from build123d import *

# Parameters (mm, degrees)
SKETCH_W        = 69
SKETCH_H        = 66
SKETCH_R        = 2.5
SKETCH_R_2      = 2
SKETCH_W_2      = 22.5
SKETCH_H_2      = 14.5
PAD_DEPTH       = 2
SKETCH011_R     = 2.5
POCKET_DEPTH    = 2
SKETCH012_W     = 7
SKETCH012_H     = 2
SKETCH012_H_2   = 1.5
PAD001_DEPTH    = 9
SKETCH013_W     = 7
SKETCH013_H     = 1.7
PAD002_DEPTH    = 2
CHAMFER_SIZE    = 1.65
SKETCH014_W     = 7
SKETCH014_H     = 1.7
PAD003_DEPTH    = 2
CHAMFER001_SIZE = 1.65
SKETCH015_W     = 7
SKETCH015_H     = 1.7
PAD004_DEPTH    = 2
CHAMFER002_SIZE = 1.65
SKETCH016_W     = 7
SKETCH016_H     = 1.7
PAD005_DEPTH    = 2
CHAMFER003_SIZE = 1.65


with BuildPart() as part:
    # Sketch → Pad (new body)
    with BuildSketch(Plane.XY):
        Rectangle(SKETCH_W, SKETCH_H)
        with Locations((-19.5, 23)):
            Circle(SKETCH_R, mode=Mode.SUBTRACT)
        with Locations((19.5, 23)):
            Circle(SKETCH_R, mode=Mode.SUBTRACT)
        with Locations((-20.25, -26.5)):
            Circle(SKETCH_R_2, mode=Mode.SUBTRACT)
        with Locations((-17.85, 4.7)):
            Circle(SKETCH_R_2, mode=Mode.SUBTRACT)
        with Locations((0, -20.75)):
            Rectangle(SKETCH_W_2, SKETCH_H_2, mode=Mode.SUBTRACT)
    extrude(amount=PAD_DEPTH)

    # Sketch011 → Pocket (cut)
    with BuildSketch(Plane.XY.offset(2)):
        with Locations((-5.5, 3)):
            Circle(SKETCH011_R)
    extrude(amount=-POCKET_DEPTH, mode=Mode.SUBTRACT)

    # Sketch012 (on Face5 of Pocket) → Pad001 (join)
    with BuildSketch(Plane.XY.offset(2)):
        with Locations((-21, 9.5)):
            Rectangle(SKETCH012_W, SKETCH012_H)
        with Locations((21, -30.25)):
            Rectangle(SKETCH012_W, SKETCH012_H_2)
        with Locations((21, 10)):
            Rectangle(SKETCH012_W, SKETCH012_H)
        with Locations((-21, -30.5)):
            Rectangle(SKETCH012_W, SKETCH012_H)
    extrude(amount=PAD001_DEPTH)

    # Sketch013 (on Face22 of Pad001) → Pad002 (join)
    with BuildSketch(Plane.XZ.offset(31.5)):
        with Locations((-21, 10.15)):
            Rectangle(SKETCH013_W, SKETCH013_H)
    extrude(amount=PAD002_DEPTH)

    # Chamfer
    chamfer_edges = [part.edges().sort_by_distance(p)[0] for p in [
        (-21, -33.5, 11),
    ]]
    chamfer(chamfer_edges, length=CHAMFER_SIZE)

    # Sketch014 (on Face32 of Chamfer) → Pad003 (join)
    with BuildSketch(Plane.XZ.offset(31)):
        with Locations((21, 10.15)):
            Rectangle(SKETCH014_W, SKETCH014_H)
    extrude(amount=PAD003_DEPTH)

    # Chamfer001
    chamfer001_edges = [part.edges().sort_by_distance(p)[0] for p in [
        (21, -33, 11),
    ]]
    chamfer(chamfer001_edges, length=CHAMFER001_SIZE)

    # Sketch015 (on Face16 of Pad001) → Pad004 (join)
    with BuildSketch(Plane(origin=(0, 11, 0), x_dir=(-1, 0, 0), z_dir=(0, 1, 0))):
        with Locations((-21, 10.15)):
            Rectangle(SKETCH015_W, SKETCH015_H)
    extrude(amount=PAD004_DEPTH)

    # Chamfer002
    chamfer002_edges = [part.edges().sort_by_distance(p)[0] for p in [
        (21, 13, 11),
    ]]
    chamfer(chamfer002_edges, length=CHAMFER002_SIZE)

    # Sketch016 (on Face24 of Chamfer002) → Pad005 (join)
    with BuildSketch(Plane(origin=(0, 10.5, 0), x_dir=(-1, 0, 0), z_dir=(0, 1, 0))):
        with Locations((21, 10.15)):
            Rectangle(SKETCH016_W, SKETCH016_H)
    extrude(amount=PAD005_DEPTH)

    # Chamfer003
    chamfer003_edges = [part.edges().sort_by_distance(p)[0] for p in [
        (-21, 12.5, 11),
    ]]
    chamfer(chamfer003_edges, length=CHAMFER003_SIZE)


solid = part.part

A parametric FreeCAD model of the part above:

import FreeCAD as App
import Part
import Sketcher

V = App.Vector
Q = App.Units.Quantity


def edges_at(feature, points):
    """Names of the edges that pass closest to the given points."""
    edges = feature.Shape.Edges
    near = lambda p: min(range(len(edges)), key=lambda i: edges[i].distToShape(Part.Vertex(*p))[0])
    return sorted({f"Edge{near(p) + 1}" for p in points})


def add_polygon(sketch, points):
    """Adds a closed chain of lines whose ends are joined by coincident constraints."""
    first, n = sketch.GeometryCount, len(points)
    for a, b in zip(points, points[1:] + points[:1]):
        sketch.addGeometry(Part.LineSegment(App.Vector(*a, 0), App.Vector(*b, 0)), False)
    for i in range(n):
        sketch.addConstraint(Sketcher.Constraint("Coincident", first + i, 2, first + (i + 1) % n, 1))

doc = App.newDocument("Part")
body = doc.addObject("PartDesign::Body", "Body")

# Sketch on XY plane
sketch1 = body.newObject("Sketcher::SketchObject", "Sketch")
sketch1.AttachmentSupport = (doc.getObject("XY_Plane"), [""])
sketch1.MapMode = "FlatFace"
add_polygon(sketch1, [(-34.5, 33), (-34.5, -33), (34.5, -33), (34.5, 33)])  # lines 0-3
sketch1.addGeometry(Part.Circle(V(-20.2, -26.5, 0), V(0, 0, 1), 2), False)  # 4
add_polygon(sketch1, [(11.2, -28), (-11.2, -28), (-11.2, -13.5), (11.2, -13.5)])  # lines 5-8
sketch1.addGeometry(Part.Circle(V(-17.9, 4.7, 0), V(0, 0, 1), 2), False)  # 9
sketch1.addGeometry(Part.Circle(V(-19.5, 23, 0), V(0, 0, 1), 2.5), False)  # 10
sketch1.addGeometry(Part.Circle(V(19.5, 23, 0), V(0, 0, 1), 2.5), False)  # 11
sketch1.addConstraint(Sketcher.Constraint("Vertical", 0))
sketch1.addConstraint(Sketcher.Constraint("Horizontal", 1))
sketch1.addConstraint(Sketcher.Constraint("Vertical", 2))
sketch1.addConstraint(Sketcher.Constraint("Horizontal", 3))
sketch1.addConstraint(Sketcher.Constraint("Horizontal", 5))
sketch1.addConstraint(Sketcher.Constraint("Vertical", 6))
sketch1.addConstraint(Sketcher.Constraint("Horizontal", 7))
sketch1.addConstraint(Sketcher.Constraint("Vertical", 8))
sketch1.addConstraint(Sketcher.Constraint("Equal", 4, 9))
sketch1.addConstraint(Sketcher.Constraint("Equal", 10, 11))
sketch1.addConstraint(Sketcher.Constraint("Symmetric", 0, 2, 2, 2, -1, 1))
sketch1.addConstraint(Sketcher.Constraint("Symmetric", 10, 3, 11, 3, -2))
sketch1.addConstraint(Sketcher.Constraint("Diameter", 4, Q("4 mm")))
sketch1.addConstraint(Sketcher.Constraint("Diameter", 10, Q("5 mm")))
sketch1.addConstraint(Sketcher.Constraint("DistanceX", 1, 1, 1, 2, Q("69 mm")))
sketch1.addConstraint(Sketcher.Constraint("DistanceY", 0, 2, 0, 1, Q("66 mm")))
sketch1.addConstraint(Sketcher.Constraint("DistanceX", 5, 2, 5, 1, Q("22.5 mm")))
sketch1.addConstraint(Sketcher.Constraint("DistanceY", 6, 1, 6, 2, Q("14.5 mm")))
sketch1.addConstraint(Sketcher.Constraint("DistanceY", -1, 1, 10, 3, Q("23 mm")))
sketch1.addConstraint(Sketcher.Constraint("DistanceY", 5, 2, -1, 1, Q("28 mm")))
sketch1.addConstraint(Sketcher.Constraint("DistanceX", 10, 3, 11, 3, Q("39 mm")))
sketch1.addConstraint(Sketcher.Constraint("DistanceX", 4, 3, 5, 2, Q("9 mm")))
sketch1.addConstraint(Sketcher.Constraint("DistanceY", 4, 3, 6, 2, Q("13 mm")))
sketch1.addConstraint(Sketcher.Constraint("DistanceY", -1, 1, 9, 3, Q("4.7 mm")))
sketch1.addConstraint(Sketcher.Constraint("DistanceX", 4, 3, 9, 3, Q("2.4 mm")))
sketch1.addConstraint(Sketcher.Constraint("DistanceX", 4, 3, -1, 1, Q("20.25 mm")))
pad1 = body.newObject("PartDesign::Pad", "Pad")
pad1.Profile = sketch1
pad1.Length = 2

# Sketch on XY plane
sketch2 = body.newObject("Sketcher::SketchObject", "Sketch001")
sketch2.AttachmentSupport = (doc.getObject("XY_Plane"), [""])
sketch2.MapMode = "FlatFace"
sketch2.AttachmentOffset = App.Placement(V(0, 0, 2), App.Rotation())
sketch2.addGeometry(Part.Circle(V(-5.5, 3, 0), V(0, 0, 1), 2.5), False)
sketch2.addConstraint(Sketcher.Constraint("Diameter", 0, Q("5 mm")))
sketch2.addConstraint(Sketcher.Constraint("DistanceY", -1, 1, 0, 3, Q("3 mm")))
sketch2.addConstraint(Sketcher.Constraint("DistanceX", 0, 3, -1, 1, Q("5.5 mm")))
pocket1 = body.newObject("PartDesign::Pocket", "Pocket")
pocket1.Profile = sketch2
pocket1.Length = 2

# Sketch on XY plane
sketch3 = body.newObject("Sketcher::SketchObject", "Sketch002")
sketch3.AttachmentSupport = (doc.getObject("XY_Plane"), [""])
sketch3.MapMode = "FlatFace"
sketch3.AttachmentOffset = App.Placement(V(0, 0, 2), App.Rotation())
add_polygon(sketch3, [(-24.5, 10.5), (-24.5, 8.5), (-17.5, 8.5), (-17.5, 10.5)])  # lines 0-3
add_polygon(sketch3, [(17.5, -29.5), (17.5, -31), (24.5, -31), (24.5, -29.5)])  # lines 4-7
add_polygon(sketch3, [(17.5, 11), (17.5, 9), (24.5, 9), (24.5, 11)])  # lines 8-11
add_polygon(sketch3, [(-24.5, -29.5), (-24.5, -31.5), (-17.5, -31.5), (-17.5, -29.5)])  # lines 12-15
sketch3.addConstraint(Sketcher.Constraint("Vertical", 0))
sketch3.addConstraint(Sketcher.Constraint("Horizontal", 1))
sketch3.addConstraint(Sketcher.Constraint("Vertical", 2))
sketch3.addConstraint(Sketcher.Constraint("Horizontal", 3))
sketch3.addConstraint(Sketcher.Constraint("Vertical", 4))
sketch3.addConstraint(Sketcher.Constraint("Horizontal", 5))
sketch3.addConstraint(Sketcher.Constraint("Vertical", 6))
sketch3.addConstraint(Sketcher.Constraint("Horizontal", 7))
sketch3.addConstraint(Sketcher.Constraint("Vertical", 8))
sketch3.addConstraint(Sketcher.Constraint("Horizontal", 9))
sketch3.addConstraint(Sketcher.Constraint("Vertical", 10))
sketch3.addConstraint(Sketcher.Constraint("Horizontal", 11))
sketch3.addConstraint(Sketcher.Constraint("Vertical", 12))
sketch3.addConstraint(Sketcher.Constraint("Horizontal", 13))
sketch3.addConstraint(Sketcher.Constraint("Vertical", 14))
sketch3.addConstraint(Sketcher.Constraint("Horizontal", 15))
sketch3.addConstraint(Sketcher.Constraint("Symmetric", 7, 2, 14, 2, -2))
sketch3.addConstraint(Sketcher.Constraint("Vertical", 7, 2, 8, 2))
sketch3.addConstraint(Sketcher.Constraint("Vertical", 6, 2, 9, 2))
sketch3.addConstraint(Sketcher.Constraint("Vertical", 3, 2, 12, 2))
sketch3.addConstraint(Sketcher.Constraint("Vertical", 2, 2, 13, 2))
sketch3.addConstraint(Sketcher.Constraint("Equal", 3, 5))
sketch3.addConstraint(Sketcher.Constraint("Equal", 2, 8))
sketch3.addConstraint(Sketcher.Constraint("Equal", 10, 12))
sketch3.addConstraint(Sketcher.Constraint("DistanceX", 1, 1, 1, 2, Q("7 mm")))
sketch3.addConstraint(Sketcher.Constraint("DistanceY", 0, 2, 0, 1, Q("2 mm")))
sketch3.addConstraint(Sketcher.Constraint("DistanceY", 4, 2, 4, 1, Q("1.5 mm")))
sketch3.addConstraint(Sketcher.Constraint("DistanceY", 4, 2, -1, 1, Q("31 mm")))
sketch3.addConstraint(Sketcher.Constraint("DistanceY", -1, 1, 8, 2, Q("9 mm")))
sketch3.addConstraint(Sketcher.Constraint("DistanceX", 1, 2, 4, 2, Q("35 mm")))
sketch3.addConstraint(Sketcher.Constraint("DistanceY", 6, 2, 1, 2, Q("38 mm")))
pad2 = body.newObject("PartDesign::Pad", "Pad001")
pad2.Profile = sketch3
pad2.Length = 9

# Sketch on XZ plane
sketch4 = body.newObject("Sketcher::SketchObject", "Sketch003")
sketch4.AttachmentSupport = (doc.getObject("XZ_Plane"), [""])
sketch4.MapMode = "FlatFace"
sketch4.AttachmentOffset = App.Placement(V(0, 0, 31.5), App.Rotation())
add_polygon(sketch4, [(-24.5, 11), (-24.5, 9.3), (-17.5, 9.3), (-17.5, 11)])  # lines 0-3
sketch4.addConstraint(Sketcher.Constraint("Vertical", 0))
sketch4.addConstraint(Sketcher.Constraint("Horizontal", 1))
sketch4.addConstraint(Sketcher.Constraint("Vertical", 2))
sketch4.addConstraint(Sketcher.Constraint("Horizontal", 3))
sketch4.addConstraint(Sketcher.Constraint("DistanceX", 1, 1, 1, 2, Q("7 mm")))
sketch4.addConstraint(Sketcher.Constraint("DistanceY", 0, 2, 0, 1, Q("1.7 mm")))
sketch4.addConstraint(Sketcher.Constraint("DistanceY", -1, 1, 2, 2, Q("11 mm")))
sketch4.addConstraint(Sketcher.Constraint("DistanceX", 0, 2, -1, 1, Q("24.5 mm")))
pad3 = body.newObject("PartDesign::Pad", "Pad002")
pad3.Profile = sketch4
pad3.Length = 2
doc.recompute()

chamfer = body.newObject("PartDesign::Chamfer", "Chamfer")
chamfer.Base = (pad3, edges_at(pad3, [(-21, -33.5, 11)]))
chamfer.Size = 1.65

# Sketch on XZ plane
sketch5 = body.newObject("Sketcher::SketchObject", "Sketch004")
sketch5.AttachmentSupport = (doc.getObject("XZ_Plane"), [""])
sketch5.MapMode = "FlatFace"
sketch5.AttachmentOffset = App.Placement(V(0, 0, 31), App.Rotation())
add_polygon(sketch5, [(17.5, 11), (17.5, 9.3), (24.5, 9.3), (24.5, 11)])  # lines 0-3
sketch5.addConstraint(Sketcher.Constraint("Vertical", 0))
sketch5.addConstraint(Sketcher.Constraint("Horizontal", 1))
sketch5.addConstraint(Sketcher.Constraint("Vertical", 2))
sketch5.addConstraint(Sketcher.Constraint("Horizontal", 3))
sketch5.addConstraint(Sketcher.Constraint("DistanceX", 1, 1, 1, 2, Q("7 mm")))
sketch5.addConstraint(Sketcher.Constraint("DistanceY", 0, 2, 0, 1, Q("1.7 mm")))
sketch5.addConstraint(Sketcher.Constraint("DistanceY", -1, 1, 2, 2, Q("11 mm")))
sketch5.addConstraint(Sketcher.Constraint("DistanceX", -1, 1, 0, 2, Q("17.5 mm")))
pad4 = body.newObject("PartDesign::Pad", "Pad003")
pad4.Profile = sketch5
pad4.Length = 2
doc.recompute()

chamfer2 = body.newObject("PartDesign::Chamfer", "Chamfer001")
chamfer2.Base = (pad4, edges_at(pad4, [(21, -33, 11)]))
chamfer2.Size = 1.65

# Sketch on XZ plane
sketch6 = body.newObject("Sketcher::SketchObject", "Sketch005")
sketch6.AttachmentSupport = (doc.getObject("XZ_Plane"), [""])
sketch6.MapMode = "FlatFace"
sketch6.AttachmentOffset = App.Placement(V(0, 0, -11), App.Rotation())
add_polygon(sketch6, [(24.5, 11), (24.5, 9.3), (17.5, 9.3), (17.5, 11)])  # lines 0-3
sketch6.addConstraint(Sketcher.Constraint("Vertical", 0))
sketch6.addConstraint(Sketcher.Constraint("Horizontal", 1))
sketch6.addConstraint(Sketcher.Constraint("Vertical", 2))
sketch6.addConstraint(Sketcher.Constraint("Horizontal", 3))
sketch6.addConstraint(Sketcher.Constraint("DistanceX", 1, 2, 1, 1, Q("7 mm")))
sketch6.addConstraint(Sketcher.Constraint("DistanceY", 0, 2, 0, 1, Q("1.7 mm")))
sketch6.addConstraint(Sketcher.Constraint("DistanceY", -1, 1, 2, 2, Q("11 mm")))
sketch6.addConstraint(Sketcher.Constraint("DistanceX", -1, 1, 0, 2, Q("24.5 mm")))
pad5 = body.newObject("PartDesign::Pad", "Pad004")
pad5.Profile = sketch6
pad5.Length = 2
pad5.Reversed = True
doc.recompute()

chamfer3 = body.newObject("PartDesign::Chamfer", "Chamfer002")
chamfer3.Base = (pad5, edges_at(pad5, [(21, 13, 11)]))
chamfer3.Size = 1.65

# Sketch on XZ plane
sketch7 = body.newObject("Sketcher::SketchObject", "Sketch006")
sketch7.AttachmentSupport = (doc.getObject("XZ_Plane"), [""])
sketch7.MapMode = "FlatFace"
sketch7.AttachmentOffset = App.Placement(V(0, 0, -10.5), App.Rotation())
add_polygon(sketch7, [(-17.5, 11), (-17.5, 9.3), (-24.5, 9.3), (-24.5, 11)])  # lines 0-3
sketch7.addConstraint(Sketcher.Constraint("Vertical", 0))
sketch7.addConstraint(Sketcher.Constraint("Horizontal", 1))
sketch7.addConstraint(Sketcher.Constraint("Vertical", 2))
sketch7.addConstraint(Sketcher.Constraint("Horizontal", 3))
sketch7.addConstraint(Sketcher.Constraint("DistanceX", 1, 2, 1, 1, Q("7 mm")))
sketch7.addConstraint(Sketcher.Constraint("DistanceY", 0, 2, 0, 1, Q("1.7 mm")))
sketch7.addConstraint(Sketcher.Constraint("DistanceY", -1, 1, 2, 2, Q("11 mm")))
sketch7.addConstraint(Sketcher.Constraint("DistanceX", 0, 2, -1, 1, Q("17.5 mm")))
pad6 = body.newObject("PartDesign::Pad", "Pad005")
pad6.Profile = sketch7
pad6.Length = 2
pad6.Reversed = True
doc.recompute()

chamfer4 = body.newObject("PartDesign::Chamfer", "Chamfer003")
chamfer4.Base = (pad6, edges_at(pad6, [(-21, 12.5, 11)]))
chamfer4.Size = 1.65

doc.recompute()
